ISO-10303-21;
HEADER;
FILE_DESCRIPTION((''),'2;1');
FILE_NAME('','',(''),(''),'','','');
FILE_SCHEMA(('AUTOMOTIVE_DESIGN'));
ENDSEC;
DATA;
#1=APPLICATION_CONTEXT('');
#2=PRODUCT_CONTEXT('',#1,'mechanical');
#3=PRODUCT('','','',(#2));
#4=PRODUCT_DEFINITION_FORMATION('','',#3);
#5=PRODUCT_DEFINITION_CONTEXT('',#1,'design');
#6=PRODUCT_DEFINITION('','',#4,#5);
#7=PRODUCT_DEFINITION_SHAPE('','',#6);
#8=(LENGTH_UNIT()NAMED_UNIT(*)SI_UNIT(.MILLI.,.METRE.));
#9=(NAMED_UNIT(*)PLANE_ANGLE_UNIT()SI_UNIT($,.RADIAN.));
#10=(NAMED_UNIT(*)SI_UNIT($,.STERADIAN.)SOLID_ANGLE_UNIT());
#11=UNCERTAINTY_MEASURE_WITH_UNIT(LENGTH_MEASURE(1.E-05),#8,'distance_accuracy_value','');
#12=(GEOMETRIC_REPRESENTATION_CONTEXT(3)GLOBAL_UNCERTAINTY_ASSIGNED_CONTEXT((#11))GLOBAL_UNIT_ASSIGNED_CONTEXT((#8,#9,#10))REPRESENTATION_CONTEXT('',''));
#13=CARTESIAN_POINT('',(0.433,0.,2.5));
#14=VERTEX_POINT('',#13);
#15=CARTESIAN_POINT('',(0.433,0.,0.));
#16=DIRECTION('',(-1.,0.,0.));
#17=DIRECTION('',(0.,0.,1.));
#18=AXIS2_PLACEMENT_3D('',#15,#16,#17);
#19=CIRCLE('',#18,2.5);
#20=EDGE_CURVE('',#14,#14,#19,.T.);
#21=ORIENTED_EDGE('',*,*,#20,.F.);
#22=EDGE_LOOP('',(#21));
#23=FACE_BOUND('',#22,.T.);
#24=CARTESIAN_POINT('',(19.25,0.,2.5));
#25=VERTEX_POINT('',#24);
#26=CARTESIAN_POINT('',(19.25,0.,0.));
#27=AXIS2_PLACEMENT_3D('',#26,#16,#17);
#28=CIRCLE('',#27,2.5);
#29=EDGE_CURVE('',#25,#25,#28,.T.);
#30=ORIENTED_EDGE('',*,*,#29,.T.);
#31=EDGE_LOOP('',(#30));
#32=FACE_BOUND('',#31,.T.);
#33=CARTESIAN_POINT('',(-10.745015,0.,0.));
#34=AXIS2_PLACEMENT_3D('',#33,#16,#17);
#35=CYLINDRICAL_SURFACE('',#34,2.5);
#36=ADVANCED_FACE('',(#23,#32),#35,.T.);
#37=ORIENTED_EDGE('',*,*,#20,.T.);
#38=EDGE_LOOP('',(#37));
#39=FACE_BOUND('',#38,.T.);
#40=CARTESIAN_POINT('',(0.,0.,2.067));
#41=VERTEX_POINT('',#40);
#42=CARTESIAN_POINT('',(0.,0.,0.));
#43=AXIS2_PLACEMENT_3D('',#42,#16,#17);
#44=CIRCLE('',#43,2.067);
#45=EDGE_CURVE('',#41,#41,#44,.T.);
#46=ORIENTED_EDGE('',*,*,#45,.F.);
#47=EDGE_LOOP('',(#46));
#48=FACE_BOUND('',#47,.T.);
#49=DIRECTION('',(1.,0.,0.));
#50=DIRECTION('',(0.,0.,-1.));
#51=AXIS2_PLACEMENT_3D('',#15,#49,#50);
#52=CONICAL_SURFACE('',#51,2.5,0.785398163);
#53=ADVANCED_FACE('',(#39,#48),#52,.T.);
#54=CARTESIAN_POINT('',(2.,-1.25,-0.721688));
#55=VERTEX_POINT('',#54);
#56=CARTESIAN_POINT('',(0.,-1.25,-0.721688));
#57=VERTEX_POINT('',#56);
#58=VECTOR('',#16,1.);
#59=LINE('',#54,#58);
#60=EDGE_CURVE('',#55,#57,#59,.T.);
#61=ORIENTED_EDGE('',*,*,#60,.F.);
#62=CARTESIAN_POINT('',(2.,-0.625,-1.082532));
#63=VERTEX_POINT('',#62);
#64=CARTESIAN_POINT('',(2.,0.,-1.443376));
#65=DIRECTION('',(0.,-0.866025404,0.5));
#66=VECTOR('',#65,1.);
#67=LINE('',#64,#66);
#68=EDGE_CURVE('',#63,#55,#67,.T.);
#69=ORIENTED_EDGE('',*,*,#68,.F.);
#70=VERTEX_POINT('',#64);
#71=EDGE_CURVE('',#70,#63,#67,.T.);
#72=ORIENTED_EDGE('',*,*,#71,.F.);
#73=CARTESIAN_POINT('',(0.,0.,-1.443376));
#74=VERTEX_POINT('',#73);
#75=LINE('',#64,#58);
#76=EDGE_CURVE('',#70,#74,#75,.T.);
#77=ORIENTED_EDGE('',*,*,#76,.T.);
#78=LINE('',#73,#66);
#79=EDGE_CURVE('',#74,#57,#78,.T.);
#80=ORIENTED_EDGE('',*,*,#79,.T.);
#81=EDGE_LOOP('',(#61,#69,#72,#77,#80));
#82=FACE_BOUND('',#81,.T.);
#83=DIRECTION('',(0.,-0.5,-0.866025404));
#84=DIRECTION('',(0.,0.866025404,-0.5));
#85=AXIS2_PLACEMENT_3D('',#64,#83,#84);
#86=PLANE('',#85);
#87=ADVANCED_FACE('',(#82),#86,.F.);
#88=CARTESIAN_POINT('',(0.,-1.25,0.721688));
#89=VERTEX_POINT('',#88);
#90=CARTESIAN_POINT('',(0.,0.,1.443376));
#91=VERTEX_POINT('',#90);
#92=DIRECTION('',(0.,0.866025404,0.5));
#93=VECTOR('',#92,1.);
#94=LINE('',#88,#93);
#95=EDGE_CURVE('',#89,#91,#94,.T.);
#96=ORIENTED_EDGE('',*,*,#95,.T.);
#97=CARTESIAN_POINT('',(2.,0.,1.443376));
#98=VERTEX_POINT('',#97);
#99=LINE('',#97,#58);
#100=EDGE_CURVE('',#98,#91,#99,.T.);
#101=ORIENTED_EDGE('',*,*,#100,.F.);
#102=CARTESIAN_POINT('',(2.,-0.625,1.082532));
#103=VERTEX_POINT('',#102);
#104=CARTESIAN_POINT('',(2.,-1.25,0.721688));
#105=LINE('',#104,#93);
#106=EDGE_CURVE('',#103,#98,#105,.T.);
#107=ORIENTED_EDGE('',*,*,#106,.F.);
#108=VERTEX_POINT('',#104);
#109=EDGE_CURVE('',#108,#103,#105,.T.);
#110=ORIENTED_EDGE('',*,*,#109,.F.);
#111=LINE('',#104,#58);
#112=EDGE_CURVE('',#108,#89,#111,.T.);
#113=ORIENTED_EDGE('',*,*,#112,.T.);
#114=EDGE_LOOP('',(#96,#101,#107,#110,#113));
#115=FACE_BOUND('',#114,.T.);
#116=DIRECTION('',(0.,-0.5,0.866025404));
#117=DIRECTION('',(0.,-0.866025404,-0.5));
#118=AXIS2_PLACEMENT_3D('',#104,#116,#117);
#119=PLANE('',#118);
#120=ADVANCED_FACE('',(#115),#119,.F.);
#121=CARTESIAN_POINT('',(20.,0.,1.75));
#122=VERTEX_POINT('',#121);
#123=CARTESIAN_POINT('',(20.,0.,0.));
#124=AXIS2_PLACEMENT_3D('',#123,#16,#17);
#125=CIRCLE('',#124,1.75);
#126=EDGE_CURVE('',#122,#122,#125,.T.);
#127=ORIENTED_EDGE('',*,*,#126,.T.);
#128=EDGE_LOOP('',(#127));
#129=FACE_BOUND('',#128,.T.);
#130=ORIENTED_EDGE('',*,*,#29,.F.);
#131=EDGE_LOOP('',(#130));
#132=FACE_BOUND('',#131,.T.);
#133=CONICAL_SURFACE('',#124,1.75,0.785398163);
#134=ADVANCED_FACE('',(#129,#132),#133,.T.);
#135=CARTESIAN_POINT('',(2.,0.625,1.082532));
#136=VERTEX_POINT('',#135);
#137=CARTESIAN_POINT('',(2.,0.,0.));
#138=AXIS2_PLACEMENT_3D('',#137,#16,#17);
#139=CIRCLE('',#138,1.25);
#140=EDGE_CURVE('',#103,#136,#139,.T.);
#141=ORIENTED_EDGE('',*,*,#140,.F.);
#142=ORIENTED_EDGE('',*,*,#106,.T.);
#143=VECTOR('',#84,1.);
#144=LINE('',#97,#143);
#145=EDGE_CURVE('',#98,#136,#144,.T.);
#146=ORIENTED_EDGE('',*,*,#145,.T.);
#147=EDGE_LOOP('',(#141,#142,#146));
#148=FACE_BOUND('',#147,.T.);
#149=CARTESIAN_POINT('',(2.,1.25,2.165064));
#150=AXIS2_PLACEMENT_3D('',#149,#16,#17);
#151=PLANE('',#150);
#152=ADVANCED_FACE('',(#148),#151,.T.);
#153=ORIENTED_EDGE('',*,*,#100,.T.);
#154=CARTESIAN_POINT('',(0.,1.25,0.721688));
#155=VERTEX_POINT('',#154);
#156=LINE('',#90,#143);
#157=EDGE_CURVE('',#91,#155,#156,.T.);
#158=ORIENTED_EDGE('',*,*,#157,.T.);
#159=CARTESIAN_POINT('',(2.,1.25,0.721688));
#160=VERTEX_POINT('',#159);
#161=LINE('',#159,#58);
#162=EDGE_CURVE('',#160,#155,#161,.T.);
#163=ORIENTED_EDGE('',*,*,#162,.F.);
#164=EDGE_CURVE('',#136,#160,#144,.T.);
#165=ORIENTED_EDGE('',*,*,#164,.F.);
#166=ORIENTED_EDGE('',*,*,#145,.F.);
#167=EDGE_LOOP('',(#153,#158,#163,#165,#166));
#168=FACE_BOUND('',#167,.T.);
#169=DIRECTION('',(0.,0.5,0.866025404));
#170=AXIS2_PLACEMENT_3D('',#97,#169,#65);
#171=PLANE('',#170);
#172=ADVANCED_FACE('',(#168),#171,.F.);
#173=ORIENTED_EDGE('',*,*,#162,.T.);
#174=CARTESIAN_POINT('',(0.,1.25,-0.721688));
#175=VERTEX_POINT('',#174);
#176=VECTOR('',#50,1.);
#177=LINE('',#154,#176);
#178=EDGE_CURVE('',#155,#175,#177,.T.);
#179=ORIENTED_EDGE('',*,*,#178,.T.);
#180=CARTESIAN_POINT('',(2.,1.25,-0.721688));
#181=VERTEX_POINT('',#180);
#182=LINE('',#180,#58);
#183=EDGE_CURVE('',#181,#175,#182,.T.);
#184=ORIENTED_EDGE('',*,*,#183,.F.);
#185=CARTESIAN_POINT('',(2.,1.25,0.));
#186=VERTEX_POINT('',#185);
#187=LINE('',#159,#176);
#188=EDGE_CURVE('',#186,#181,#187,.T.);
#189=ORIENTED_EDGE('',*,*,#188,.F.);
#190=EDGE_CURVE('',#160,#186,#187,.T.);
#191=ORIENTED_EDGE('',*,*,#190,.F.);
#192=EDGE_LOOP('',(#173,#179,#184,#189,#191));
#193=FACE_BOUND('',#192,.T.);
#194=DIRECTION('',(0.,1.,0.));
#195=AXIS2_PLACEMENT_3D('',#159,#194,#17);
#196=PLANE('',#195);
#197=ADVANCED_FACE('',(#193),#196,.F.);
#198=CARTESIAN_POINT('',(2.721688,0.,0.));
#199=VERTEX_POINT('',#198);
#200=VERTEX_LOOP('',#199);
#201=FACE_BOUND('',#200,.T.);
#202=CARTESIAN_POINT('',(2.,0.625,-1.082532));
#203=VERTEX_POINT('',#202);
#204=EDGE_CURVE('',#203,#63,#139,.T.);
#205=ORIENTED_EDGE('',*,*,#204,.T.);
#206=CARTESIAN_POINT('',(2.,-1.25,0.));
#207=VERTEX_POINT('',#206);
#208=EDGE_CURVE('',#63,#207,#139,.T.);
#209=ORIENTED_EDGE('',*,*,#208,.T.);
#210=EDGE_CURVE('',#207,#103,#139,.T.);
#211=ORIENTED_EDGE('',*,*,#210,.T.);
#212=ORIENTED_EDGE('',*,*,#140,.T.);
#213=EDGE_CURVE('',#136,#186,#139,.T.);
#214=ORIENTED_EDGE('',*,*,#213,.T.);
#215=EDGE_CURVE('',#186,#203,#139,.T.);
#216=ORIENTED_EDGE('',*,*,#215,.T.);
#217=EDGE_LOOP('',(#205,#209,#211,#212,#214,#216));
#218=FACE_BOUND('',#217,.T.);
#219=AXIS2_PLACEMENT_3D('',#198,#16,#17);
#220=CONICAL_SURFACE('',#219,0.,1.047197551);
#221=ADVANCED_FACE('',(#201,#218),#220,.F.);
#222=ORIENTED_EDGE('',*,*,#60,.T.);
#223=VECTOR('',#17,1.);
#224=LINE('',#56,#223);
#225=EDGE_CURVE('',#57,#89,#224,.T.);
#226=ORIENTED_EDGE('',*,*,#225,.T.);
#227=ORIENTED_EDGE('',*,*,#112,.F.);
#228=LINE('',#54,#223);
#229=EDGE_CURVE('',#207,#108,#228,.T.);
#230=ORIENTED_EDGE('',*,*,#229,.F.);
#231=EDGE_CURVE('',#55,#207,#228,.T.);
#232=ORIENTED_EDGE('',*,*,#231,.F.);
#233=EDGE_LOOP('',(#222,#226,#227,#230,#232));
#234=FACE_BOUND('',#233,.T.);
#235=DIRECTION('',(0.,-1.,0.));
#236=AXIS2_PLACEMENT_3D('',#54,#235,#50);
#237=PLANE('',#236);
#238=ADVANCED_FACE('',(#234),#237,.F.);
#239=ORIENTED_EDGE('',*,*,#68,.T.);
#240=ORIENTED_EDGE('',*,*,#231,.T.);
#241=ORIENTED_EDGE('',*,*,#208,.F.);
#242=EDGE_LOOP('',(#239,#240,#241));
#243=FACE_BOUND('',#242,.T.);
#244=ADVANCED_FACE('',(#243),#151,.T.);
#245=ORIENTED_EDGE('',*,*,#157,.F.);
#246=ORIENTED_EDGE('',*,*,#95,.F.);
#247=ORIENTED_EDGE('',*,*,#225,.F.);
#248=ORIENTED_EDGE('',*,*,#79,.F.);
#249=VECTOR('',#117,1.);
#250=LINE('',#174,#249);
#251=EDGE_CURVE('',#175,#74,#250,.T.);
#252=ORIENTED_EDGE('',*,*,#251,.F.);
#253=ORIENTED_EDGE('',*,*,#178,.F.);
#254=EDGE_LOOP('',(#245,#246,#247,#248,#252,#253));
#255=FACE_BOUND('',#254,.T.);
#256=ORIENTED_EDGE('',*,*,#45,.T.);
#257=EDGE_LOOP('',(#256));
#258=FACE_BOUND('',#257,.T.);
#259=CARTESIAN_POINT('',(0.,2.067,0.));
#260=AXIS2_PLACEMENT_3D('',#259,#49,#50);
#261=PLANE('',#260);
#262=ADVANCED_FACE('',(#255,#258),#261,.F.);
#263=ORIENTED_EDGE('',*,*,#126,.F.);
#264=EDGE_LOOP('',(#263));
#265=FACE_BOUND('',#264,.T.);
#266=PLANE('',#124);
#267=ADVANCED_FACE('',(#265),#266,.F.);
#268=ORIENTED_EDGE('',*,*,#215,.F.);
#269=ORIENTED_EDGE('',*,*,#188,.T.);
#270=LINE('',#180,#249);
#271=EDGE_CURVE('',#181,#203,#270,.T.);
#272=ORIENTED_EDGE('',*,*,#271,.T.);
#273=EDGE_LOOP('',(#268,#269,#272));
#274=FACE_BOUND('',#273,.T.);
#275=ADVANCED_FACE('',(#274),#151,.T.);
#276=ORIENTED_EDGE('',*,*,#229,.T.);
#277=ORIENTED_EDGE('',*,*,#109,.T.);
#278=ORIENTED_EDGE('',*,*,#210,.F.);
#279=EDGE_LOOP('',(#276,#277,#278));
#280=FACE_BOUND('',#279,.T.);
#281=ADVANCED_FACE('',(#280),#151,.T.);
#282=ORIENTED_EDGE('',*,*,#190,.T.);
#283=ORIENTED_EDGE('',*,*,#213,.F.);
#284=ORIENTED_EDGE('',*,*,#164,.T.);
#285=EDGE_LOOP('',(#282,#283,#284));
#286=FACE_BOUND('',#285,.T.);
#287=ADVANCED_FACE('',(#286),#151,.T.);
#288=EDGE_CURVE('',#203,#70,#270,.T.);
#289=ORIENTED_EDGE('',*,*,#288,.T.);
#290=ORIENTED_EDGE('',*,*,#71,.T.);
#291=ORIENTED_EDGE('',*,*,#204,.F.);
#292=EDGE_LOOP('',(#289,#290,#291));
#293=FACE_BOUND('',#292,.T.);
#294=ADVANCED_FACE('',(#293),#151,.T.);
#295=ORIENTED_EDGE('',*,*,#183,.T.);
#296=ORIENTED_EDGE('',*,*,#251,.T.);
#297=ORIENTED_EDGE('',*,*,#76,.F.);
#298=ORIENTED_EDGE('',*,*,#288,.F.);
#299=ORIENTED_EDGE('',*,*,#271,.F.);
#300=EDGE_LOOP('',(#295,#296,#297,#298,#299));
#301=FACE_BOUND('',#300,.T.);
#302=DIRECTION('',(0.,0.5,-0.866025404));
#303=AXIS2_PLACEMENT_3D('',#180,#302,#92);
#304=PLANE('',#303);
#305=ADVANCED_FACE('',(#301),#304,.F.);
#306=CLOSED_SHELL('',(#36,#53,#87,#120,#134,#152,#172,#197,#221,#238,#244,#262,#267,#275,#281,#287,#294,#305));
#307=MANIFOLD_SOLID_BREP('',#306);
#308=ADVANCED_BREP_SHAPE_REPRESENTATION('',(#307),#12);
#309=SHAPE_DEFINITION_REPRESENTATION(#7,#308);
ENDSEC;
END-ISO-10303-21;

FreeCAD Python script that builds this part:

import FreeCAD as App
import Part
import Sketcher
from FreeCAD import Vector
Q = App.Units.Quantity

doc = App.newDocument("Part")
body = doc.addObject("PartDesign::Body", "Body")

sketch1 = doc.addObject("Sketcher::SketchObject", "Sketch")
body.addObject(sketch1)
sketch1.AttachmentSupport = (doc.XY_Plane, [""])
sketch1.MapMode = "FlatFace"
sketch1.addGeometry([
    Part.LineSegment(Vector(0, 0, 0), Vector(20, 0, 0)),
    Part.LineSegment(Vector(20, 0, 0), Vector(20, 1.8, 0)),
    Part.LineSegment(Vector(20, 1.8, 0), Vector(19.2, 2.5, 0)),
    Part.LineSegment(Vector(19.2, 2.5, 0), Vector(0.4, 2.5, 0)),
    Part.LineSegment(Vector(0.4, 2.5, 0), Vector(0, 2.1, 0)),
    Part.LineSegment(Vector(0, 2.1, 0), Vector(0, 0, 0)),
], False)
sketch1.addConstraint([
    Sketcher.Constraint("Coincident", 0, 2, 1, 1),
    Sketcher.Constraint("Coincident", 1, 2, 2, 1),
    Sketcher.Constraint("Coincident", 2, 2, 3, 1),
    Sketcher.Constraint("Coincident", 3, 2, 4, 1),
    Sketcher.Constraint("Coincident", 4, 2, 5, 1),
    Sketcher.Constraint("Coincident", 5, 2, 0, 1),
    Sketcher.Constraint("Horizontal", 0),
    Sketcher.Constraint("Vertical", 1),
    Sketcher.Constraint("Horizontal", 3),
    Sketcher.Constraint("Vertical", 5),
    Sketcher.Constraint("Coincident", 5, 2, -1, 1),
    Sketcher.Constraint("Perpendicular", 2, 4),
    Sketcher.Constraint("DistanceX", 0, 1, 0, 2, 20.0),
    Sketcher.Constraint("Angle", 2, Q("135 deg")),
    Sketcher.Constraint("DistanceY", 1, 1, 1, 2, 1.75),
    Sketcher.Constraint("DistanceY", -1, 1, 2, 2, 2.5),
    Sketcher.Constraint("DistanceX", 3, 2, 3, 1, 18.817),
])
revolution = doc.addObject("PartDesign::Revolution", "Revolution")
body.addObject(revolution)
revolution.Profile = sketch1
revolution.ReferenceAxis = (sketch1, ["H_Axis"])
revolution.Angle = 360

sketch2 = doc.addObject("Sketcher::SketchObject", "Sketch001")
body.addObject(sketch2)
sketch2.AttachmentSupport = (doc.YZ_Plane, [""])
sketch2.MapMode = "FlatFace"
sketch2.addGeometry([
    Part.LineSegment(Vector(0, 1.4, 0), Vector(1.2, 0.7, 0)),
    Part.LineSegment(Vector(1.2, 0.7, 0), Vector(1.2, -0.7, 0)),
    Part.LineSegment(Vector(1.2, -0.7, 0), Vector(0, -1.4, 0)),
    Part.LineSegment(Vector(0, -1.4, 0), Vector(-1.2, -0.7, 0)),
    Part.LineSegment(Vector(-1.2, -0.7, 0), Vector(-1.2, 0.7, 0)),
    Part.LineSegment(Vector(-1.2, 0.7, 0), Vector(0, 1.4, 0)),
], False)
sketch2.addConstraint([
    Sketcher.Constraint("Coincident", 0, 2, 1, 1),
    Sketcher.Constraint("Coincident", 1, 2, 2, 1),
    Sketcher.Constraint("Coincident", 2, 2, 3, 1),
    Sketcher.Constraint("Coincident", 3, 2, 4, 1),
    Sketcher.Constraint("Coincident", 4, 2, 5, 1),
    Sketcher.Constraint("Coincident", 5, 2, 0, 1),
    Sketcher.Constraint("Vertical", 1),
    Sketcher.Constraint("Vertical", 4),
    Sketcher.Constraint("Symmetric", 0, 2, 3, 2, -1, 1),
    Sketcher.Constraint("Symmetric", 2, 2, 5, 2, -1, 1),
    Sketcher.Constraint("PointOnObject", 2, 2, -2),
    Sketcher.Constraint("Parallel", 2, 5),
    Sketcher.Constraint("Horizontal", 1, 2, 3, 2),
    Sketcher.Constraint("Angle", 0, Q("-30 deg")),
    Sketcher.Constraint("DistanceX", 3, 2, 1, 2, 2.5),
    Sketcher.Constraint("DistanceY", 1, 2, 1, 1, 1.443376),
])
pocket1 = doc.addObject("PartDesign::Pocket", "Pocket")
body.addObject(pocket1)
pocket1.Profile = sketch2
pocket1.Length = 2
pocket1.Reversed = True

sketch3 = doc.addObject("Sketcher::SketchObject", "Sketch002")
body.addObject(sketch3)
sketch3.AttachmentSupport = (doc.XY_Plane, [""])
sketch3.MapMode = "FlatFace"
sketch3.addGeometry([
    Part.LineSegment(Vector(2.7, 0, 0), Vector(2, 1.2, 0)),
    Part.LineSegment(Vector(2, 1.2, 0), Vector(2, 0, 0)),
    Part.LineSegment(Vector(2, 0, 0), Vector(2.7, 0, 0)),
], False)
sketch3.addConstraint([
    Sketcher.Constraint("Coincident", 0, 2, 1, 1),
    Sketcher.Constraint("Coincident", 1, 2, 2, 1),
    Sketcher.Constraint("Coincident", 2, 2, 0, 1),
    Sketcher.Constraint("Vertical", 1),
    Sketcher.Constraint("Horizontal", 2),
    Sketcher.Constraint("PointOnObject", 1, 2, -1),
    Sketcher.Constraint("Angle", 0, Q("120 deg")),
    Sketcher.Constraint("DistanceX", -1, 1, 0, 2, 2.0),
    Sketcher.Constraint("DistanceY", 1, 2, 1, 1, 1.25),
])
groove = doc.addObject("PartDesign::Groove", "Groove")
body.addObject(groove)
groove.Profile = sketch3
groove.ReferenceAxis = (sketch3, ["H_Axis"])
groove.Angle = 360

doc.recompute()
